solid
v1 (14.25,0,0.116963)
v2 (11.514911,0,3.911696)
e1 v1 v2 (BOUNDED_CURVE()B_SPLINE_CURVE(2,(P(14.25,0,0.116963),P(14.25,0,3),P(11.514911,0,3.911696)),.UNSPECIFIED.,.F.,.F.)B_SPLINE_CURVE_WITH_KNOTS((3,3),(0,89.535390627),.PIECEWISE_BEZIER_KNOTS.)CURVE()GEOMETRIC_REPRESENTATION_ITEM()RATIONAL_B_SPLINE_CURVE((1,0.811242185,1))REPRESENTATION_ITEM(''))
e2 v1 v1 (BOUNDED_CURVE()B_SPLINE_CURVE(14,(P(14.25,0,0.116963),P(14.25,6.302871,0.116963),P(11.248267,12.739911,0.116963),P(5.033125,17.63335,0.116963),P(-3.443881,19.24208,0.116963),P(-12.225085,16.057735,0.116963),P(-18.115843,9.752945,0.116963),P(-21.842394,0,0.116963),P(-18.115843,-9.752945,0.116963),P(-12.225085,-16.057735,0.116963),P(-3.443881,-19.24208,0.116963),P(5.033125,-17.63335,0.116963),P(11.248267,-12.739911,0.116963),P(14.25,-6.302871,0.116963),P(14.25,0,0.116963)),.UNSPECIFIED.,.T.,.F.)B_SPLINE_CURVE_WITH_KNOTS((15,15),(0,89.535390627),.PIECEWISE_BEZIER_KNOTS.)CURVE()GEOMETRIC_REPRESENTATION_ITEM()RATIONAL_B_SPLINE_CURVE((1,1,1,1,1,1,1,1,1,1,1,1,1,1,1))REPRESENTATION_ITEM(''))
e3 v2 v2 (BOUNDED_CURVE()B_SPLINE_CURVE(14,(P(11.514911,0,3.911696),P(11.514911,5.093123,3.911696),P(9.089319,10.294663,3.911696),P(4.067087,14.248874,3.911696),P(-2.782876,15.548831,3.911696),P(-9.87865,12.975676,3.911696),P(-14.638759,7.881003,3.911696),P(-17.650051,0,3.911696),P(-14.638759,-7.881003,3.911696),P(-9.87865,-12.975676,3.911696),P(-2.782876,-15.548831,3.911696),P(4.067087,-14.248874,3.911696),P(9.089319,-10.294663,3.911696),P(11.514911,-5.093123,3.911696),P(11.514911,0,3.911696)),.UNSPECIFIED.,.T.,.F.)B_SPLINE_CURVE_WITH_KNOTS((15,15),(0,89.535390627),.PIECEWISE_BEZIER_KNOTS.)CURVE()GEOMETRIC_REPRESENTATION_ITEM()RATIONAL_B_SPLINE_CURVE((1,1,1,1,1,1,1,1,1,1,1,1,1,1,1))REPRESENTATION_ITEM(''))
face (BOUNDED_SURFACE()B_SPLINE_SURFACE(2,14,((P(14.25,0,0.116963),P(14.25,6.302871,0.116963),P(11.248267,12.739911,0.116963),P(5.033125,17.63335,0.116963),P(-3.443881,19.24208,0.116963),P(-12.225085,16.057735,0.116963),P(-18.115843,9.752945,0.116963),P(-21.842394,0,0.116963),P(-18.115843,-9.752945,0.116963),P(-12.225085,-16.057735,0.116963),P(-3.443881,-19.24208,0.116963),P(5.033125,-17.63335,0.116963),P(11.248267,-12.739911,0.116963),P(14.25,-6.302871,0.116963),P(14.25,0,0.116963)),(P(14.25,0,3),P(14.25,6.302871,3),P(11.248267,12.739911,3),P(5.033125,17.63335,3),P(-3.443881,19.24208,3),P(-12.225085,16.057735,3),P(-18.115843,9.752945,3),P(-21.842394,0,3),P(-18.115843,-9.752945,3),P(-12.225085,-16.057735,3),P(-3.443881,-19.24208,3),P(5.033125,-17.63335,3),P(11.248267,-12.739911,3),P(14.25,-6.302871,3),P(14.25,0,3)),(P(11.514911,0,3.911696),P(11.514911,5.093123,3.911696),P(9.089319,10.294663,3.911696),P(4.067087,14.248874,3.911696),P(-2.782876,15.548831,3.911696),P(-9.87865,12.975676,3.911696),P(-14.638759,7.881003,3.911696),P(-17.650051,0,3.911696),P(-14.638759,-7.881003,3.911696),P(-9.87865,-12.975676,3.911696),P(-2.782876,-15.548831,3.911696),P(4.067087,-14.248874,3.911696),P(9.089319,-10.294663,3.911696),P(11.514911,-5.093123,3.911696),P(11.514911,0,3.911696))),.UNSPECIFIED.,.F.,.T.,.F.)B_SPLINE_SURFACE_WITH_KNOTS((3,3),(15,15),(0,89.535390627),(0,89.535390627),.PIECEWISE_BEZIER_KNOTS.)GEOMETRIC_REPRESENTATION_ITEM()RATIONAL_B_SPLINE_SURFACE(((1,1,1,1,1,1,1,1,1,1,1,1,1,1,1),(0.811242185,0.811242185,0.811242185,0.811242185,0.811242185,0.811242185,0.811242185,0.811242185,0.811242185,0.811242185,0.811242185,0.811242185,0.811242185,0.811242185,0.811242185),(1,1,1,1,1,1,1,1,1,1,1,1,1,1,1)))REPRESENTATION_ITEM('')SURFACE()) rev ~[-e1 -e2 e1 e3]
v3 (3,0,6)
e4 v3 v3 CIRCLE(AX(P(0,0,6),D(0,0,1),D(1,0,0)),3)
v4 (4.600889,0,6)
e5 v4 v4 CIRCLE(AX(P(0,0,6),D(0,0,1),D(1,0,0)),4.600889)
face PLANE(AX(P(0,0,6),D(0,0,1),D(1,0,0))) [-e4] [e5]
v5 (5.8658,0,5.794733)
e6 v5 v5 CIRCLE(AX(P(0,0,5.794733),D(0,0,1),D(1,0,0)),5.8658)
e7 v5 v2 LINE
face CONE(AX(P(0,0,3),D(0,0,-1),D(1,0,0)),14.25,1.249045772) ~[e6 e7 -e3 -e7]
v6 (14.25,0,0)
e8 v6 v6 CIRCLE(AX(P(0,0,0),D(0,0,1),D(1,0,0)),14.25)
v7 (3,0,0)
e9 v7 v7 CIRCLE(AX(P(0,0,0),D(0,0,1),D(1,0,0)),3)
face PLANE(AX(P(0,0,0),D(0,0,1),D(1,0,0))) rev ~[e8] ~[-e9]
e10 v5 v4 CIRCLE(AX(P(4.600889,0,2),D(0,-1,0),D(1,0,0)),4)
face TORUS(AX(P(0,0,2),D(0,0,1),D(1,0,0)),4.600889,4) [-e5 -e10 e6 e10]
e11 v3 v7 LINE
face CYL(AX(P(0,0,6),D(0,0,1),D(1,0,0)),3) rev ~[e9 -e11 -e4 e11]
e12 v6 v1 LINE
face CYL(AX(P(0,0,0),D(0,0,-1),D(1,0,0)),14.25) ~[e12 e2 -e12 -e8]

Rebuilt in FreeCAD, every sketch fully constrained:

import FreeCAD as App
import Part
import Sketcher

V = App.Vector
Q = App.Units.Quantity


def edges_at(feature, points):
    """Names of the edges that pass closest to the given points."""
    edges = feature.Shape.Edges
    near = lambda p: min(range(len(edges)), key=lambda i: edges[i].distToShape(Part.Vertex(*p))[0])
    return sorted({f"Edge{near(p) + 1}" for p in points})

doc = App.newDocument("Part")
body = doc.addObject("PartDesign::Body", "Body")

# Sketch on XY plane
sketch1 = body.newObject("Sketcher::SketchObject", "Sketch")
sketch1.AttachmentSupport = (doc.getObject("XY_Plane"), [""])
sketch1.MapMode = "FlatFace"
sketch1.addGeometry(Part.Circle(V(0, 0, 0), V(0, 0, 1), 14), False)
sketch1.addConstraint(Sketcher.Constraint("Coincident", 0, 3, -1, 1))
sketch1.addConstraint(Sketcher.Constraint("Diameter", 0, Q("28.5 mm")))
pad1 = body.newObject("PartDesign::Pad", "Pad")
pad1.Profile = sketch1
pad1.Length = 6

# Sketch on XY plane
sketch2 = body.newObject("Sketcher::SketchObject", "Sketch001")
sketch2.AttachmentSupport = (doc.getObject("XY_Plane"), [""])
sketch2.MapMode = "FlatFace"
sketch2.AttachmentOffset = App.Placement(V(0, 0, 6), App.Rotation())
sketch2.addGeometry(Part.Circle(V(0, 0, 0), V(0, 0, 1), 3), False)
sketch2.addConstraint(Sketcher.Constraint("Coincident", 0, 3, -1, 1))
sketch2.addConstraint(Sketcher.Constraint("Diameter", 0, Q("6 mm")))
pocket1 = body.newObject("PartDesign::Pocket", "Pocket")
pocket1.Profile = sketch2
pocket1.Length = 25
doc.recompute()

chamfer = body.newObject("PartDesign::Chamfer", "Chamfer")
chamfer.Base = (pocket1, edges_at(pocket1, [(-14.25, 0, 6)]))
chamfer.ChamferType = "Two distances"
chamfer.Size = 9
chamfer.Size2 = 3
chamfer.FlipDirection = True
doc.recompute()

fillet = body.newObject("PartDesign::Fillet", "Fillet")
fillet.Base = (chamfer, edges_at(chamfer, [(-5.25, 0, 6), (-14.25, 0, 3)]))
fillet.Radius = 4

doc.recompute()
